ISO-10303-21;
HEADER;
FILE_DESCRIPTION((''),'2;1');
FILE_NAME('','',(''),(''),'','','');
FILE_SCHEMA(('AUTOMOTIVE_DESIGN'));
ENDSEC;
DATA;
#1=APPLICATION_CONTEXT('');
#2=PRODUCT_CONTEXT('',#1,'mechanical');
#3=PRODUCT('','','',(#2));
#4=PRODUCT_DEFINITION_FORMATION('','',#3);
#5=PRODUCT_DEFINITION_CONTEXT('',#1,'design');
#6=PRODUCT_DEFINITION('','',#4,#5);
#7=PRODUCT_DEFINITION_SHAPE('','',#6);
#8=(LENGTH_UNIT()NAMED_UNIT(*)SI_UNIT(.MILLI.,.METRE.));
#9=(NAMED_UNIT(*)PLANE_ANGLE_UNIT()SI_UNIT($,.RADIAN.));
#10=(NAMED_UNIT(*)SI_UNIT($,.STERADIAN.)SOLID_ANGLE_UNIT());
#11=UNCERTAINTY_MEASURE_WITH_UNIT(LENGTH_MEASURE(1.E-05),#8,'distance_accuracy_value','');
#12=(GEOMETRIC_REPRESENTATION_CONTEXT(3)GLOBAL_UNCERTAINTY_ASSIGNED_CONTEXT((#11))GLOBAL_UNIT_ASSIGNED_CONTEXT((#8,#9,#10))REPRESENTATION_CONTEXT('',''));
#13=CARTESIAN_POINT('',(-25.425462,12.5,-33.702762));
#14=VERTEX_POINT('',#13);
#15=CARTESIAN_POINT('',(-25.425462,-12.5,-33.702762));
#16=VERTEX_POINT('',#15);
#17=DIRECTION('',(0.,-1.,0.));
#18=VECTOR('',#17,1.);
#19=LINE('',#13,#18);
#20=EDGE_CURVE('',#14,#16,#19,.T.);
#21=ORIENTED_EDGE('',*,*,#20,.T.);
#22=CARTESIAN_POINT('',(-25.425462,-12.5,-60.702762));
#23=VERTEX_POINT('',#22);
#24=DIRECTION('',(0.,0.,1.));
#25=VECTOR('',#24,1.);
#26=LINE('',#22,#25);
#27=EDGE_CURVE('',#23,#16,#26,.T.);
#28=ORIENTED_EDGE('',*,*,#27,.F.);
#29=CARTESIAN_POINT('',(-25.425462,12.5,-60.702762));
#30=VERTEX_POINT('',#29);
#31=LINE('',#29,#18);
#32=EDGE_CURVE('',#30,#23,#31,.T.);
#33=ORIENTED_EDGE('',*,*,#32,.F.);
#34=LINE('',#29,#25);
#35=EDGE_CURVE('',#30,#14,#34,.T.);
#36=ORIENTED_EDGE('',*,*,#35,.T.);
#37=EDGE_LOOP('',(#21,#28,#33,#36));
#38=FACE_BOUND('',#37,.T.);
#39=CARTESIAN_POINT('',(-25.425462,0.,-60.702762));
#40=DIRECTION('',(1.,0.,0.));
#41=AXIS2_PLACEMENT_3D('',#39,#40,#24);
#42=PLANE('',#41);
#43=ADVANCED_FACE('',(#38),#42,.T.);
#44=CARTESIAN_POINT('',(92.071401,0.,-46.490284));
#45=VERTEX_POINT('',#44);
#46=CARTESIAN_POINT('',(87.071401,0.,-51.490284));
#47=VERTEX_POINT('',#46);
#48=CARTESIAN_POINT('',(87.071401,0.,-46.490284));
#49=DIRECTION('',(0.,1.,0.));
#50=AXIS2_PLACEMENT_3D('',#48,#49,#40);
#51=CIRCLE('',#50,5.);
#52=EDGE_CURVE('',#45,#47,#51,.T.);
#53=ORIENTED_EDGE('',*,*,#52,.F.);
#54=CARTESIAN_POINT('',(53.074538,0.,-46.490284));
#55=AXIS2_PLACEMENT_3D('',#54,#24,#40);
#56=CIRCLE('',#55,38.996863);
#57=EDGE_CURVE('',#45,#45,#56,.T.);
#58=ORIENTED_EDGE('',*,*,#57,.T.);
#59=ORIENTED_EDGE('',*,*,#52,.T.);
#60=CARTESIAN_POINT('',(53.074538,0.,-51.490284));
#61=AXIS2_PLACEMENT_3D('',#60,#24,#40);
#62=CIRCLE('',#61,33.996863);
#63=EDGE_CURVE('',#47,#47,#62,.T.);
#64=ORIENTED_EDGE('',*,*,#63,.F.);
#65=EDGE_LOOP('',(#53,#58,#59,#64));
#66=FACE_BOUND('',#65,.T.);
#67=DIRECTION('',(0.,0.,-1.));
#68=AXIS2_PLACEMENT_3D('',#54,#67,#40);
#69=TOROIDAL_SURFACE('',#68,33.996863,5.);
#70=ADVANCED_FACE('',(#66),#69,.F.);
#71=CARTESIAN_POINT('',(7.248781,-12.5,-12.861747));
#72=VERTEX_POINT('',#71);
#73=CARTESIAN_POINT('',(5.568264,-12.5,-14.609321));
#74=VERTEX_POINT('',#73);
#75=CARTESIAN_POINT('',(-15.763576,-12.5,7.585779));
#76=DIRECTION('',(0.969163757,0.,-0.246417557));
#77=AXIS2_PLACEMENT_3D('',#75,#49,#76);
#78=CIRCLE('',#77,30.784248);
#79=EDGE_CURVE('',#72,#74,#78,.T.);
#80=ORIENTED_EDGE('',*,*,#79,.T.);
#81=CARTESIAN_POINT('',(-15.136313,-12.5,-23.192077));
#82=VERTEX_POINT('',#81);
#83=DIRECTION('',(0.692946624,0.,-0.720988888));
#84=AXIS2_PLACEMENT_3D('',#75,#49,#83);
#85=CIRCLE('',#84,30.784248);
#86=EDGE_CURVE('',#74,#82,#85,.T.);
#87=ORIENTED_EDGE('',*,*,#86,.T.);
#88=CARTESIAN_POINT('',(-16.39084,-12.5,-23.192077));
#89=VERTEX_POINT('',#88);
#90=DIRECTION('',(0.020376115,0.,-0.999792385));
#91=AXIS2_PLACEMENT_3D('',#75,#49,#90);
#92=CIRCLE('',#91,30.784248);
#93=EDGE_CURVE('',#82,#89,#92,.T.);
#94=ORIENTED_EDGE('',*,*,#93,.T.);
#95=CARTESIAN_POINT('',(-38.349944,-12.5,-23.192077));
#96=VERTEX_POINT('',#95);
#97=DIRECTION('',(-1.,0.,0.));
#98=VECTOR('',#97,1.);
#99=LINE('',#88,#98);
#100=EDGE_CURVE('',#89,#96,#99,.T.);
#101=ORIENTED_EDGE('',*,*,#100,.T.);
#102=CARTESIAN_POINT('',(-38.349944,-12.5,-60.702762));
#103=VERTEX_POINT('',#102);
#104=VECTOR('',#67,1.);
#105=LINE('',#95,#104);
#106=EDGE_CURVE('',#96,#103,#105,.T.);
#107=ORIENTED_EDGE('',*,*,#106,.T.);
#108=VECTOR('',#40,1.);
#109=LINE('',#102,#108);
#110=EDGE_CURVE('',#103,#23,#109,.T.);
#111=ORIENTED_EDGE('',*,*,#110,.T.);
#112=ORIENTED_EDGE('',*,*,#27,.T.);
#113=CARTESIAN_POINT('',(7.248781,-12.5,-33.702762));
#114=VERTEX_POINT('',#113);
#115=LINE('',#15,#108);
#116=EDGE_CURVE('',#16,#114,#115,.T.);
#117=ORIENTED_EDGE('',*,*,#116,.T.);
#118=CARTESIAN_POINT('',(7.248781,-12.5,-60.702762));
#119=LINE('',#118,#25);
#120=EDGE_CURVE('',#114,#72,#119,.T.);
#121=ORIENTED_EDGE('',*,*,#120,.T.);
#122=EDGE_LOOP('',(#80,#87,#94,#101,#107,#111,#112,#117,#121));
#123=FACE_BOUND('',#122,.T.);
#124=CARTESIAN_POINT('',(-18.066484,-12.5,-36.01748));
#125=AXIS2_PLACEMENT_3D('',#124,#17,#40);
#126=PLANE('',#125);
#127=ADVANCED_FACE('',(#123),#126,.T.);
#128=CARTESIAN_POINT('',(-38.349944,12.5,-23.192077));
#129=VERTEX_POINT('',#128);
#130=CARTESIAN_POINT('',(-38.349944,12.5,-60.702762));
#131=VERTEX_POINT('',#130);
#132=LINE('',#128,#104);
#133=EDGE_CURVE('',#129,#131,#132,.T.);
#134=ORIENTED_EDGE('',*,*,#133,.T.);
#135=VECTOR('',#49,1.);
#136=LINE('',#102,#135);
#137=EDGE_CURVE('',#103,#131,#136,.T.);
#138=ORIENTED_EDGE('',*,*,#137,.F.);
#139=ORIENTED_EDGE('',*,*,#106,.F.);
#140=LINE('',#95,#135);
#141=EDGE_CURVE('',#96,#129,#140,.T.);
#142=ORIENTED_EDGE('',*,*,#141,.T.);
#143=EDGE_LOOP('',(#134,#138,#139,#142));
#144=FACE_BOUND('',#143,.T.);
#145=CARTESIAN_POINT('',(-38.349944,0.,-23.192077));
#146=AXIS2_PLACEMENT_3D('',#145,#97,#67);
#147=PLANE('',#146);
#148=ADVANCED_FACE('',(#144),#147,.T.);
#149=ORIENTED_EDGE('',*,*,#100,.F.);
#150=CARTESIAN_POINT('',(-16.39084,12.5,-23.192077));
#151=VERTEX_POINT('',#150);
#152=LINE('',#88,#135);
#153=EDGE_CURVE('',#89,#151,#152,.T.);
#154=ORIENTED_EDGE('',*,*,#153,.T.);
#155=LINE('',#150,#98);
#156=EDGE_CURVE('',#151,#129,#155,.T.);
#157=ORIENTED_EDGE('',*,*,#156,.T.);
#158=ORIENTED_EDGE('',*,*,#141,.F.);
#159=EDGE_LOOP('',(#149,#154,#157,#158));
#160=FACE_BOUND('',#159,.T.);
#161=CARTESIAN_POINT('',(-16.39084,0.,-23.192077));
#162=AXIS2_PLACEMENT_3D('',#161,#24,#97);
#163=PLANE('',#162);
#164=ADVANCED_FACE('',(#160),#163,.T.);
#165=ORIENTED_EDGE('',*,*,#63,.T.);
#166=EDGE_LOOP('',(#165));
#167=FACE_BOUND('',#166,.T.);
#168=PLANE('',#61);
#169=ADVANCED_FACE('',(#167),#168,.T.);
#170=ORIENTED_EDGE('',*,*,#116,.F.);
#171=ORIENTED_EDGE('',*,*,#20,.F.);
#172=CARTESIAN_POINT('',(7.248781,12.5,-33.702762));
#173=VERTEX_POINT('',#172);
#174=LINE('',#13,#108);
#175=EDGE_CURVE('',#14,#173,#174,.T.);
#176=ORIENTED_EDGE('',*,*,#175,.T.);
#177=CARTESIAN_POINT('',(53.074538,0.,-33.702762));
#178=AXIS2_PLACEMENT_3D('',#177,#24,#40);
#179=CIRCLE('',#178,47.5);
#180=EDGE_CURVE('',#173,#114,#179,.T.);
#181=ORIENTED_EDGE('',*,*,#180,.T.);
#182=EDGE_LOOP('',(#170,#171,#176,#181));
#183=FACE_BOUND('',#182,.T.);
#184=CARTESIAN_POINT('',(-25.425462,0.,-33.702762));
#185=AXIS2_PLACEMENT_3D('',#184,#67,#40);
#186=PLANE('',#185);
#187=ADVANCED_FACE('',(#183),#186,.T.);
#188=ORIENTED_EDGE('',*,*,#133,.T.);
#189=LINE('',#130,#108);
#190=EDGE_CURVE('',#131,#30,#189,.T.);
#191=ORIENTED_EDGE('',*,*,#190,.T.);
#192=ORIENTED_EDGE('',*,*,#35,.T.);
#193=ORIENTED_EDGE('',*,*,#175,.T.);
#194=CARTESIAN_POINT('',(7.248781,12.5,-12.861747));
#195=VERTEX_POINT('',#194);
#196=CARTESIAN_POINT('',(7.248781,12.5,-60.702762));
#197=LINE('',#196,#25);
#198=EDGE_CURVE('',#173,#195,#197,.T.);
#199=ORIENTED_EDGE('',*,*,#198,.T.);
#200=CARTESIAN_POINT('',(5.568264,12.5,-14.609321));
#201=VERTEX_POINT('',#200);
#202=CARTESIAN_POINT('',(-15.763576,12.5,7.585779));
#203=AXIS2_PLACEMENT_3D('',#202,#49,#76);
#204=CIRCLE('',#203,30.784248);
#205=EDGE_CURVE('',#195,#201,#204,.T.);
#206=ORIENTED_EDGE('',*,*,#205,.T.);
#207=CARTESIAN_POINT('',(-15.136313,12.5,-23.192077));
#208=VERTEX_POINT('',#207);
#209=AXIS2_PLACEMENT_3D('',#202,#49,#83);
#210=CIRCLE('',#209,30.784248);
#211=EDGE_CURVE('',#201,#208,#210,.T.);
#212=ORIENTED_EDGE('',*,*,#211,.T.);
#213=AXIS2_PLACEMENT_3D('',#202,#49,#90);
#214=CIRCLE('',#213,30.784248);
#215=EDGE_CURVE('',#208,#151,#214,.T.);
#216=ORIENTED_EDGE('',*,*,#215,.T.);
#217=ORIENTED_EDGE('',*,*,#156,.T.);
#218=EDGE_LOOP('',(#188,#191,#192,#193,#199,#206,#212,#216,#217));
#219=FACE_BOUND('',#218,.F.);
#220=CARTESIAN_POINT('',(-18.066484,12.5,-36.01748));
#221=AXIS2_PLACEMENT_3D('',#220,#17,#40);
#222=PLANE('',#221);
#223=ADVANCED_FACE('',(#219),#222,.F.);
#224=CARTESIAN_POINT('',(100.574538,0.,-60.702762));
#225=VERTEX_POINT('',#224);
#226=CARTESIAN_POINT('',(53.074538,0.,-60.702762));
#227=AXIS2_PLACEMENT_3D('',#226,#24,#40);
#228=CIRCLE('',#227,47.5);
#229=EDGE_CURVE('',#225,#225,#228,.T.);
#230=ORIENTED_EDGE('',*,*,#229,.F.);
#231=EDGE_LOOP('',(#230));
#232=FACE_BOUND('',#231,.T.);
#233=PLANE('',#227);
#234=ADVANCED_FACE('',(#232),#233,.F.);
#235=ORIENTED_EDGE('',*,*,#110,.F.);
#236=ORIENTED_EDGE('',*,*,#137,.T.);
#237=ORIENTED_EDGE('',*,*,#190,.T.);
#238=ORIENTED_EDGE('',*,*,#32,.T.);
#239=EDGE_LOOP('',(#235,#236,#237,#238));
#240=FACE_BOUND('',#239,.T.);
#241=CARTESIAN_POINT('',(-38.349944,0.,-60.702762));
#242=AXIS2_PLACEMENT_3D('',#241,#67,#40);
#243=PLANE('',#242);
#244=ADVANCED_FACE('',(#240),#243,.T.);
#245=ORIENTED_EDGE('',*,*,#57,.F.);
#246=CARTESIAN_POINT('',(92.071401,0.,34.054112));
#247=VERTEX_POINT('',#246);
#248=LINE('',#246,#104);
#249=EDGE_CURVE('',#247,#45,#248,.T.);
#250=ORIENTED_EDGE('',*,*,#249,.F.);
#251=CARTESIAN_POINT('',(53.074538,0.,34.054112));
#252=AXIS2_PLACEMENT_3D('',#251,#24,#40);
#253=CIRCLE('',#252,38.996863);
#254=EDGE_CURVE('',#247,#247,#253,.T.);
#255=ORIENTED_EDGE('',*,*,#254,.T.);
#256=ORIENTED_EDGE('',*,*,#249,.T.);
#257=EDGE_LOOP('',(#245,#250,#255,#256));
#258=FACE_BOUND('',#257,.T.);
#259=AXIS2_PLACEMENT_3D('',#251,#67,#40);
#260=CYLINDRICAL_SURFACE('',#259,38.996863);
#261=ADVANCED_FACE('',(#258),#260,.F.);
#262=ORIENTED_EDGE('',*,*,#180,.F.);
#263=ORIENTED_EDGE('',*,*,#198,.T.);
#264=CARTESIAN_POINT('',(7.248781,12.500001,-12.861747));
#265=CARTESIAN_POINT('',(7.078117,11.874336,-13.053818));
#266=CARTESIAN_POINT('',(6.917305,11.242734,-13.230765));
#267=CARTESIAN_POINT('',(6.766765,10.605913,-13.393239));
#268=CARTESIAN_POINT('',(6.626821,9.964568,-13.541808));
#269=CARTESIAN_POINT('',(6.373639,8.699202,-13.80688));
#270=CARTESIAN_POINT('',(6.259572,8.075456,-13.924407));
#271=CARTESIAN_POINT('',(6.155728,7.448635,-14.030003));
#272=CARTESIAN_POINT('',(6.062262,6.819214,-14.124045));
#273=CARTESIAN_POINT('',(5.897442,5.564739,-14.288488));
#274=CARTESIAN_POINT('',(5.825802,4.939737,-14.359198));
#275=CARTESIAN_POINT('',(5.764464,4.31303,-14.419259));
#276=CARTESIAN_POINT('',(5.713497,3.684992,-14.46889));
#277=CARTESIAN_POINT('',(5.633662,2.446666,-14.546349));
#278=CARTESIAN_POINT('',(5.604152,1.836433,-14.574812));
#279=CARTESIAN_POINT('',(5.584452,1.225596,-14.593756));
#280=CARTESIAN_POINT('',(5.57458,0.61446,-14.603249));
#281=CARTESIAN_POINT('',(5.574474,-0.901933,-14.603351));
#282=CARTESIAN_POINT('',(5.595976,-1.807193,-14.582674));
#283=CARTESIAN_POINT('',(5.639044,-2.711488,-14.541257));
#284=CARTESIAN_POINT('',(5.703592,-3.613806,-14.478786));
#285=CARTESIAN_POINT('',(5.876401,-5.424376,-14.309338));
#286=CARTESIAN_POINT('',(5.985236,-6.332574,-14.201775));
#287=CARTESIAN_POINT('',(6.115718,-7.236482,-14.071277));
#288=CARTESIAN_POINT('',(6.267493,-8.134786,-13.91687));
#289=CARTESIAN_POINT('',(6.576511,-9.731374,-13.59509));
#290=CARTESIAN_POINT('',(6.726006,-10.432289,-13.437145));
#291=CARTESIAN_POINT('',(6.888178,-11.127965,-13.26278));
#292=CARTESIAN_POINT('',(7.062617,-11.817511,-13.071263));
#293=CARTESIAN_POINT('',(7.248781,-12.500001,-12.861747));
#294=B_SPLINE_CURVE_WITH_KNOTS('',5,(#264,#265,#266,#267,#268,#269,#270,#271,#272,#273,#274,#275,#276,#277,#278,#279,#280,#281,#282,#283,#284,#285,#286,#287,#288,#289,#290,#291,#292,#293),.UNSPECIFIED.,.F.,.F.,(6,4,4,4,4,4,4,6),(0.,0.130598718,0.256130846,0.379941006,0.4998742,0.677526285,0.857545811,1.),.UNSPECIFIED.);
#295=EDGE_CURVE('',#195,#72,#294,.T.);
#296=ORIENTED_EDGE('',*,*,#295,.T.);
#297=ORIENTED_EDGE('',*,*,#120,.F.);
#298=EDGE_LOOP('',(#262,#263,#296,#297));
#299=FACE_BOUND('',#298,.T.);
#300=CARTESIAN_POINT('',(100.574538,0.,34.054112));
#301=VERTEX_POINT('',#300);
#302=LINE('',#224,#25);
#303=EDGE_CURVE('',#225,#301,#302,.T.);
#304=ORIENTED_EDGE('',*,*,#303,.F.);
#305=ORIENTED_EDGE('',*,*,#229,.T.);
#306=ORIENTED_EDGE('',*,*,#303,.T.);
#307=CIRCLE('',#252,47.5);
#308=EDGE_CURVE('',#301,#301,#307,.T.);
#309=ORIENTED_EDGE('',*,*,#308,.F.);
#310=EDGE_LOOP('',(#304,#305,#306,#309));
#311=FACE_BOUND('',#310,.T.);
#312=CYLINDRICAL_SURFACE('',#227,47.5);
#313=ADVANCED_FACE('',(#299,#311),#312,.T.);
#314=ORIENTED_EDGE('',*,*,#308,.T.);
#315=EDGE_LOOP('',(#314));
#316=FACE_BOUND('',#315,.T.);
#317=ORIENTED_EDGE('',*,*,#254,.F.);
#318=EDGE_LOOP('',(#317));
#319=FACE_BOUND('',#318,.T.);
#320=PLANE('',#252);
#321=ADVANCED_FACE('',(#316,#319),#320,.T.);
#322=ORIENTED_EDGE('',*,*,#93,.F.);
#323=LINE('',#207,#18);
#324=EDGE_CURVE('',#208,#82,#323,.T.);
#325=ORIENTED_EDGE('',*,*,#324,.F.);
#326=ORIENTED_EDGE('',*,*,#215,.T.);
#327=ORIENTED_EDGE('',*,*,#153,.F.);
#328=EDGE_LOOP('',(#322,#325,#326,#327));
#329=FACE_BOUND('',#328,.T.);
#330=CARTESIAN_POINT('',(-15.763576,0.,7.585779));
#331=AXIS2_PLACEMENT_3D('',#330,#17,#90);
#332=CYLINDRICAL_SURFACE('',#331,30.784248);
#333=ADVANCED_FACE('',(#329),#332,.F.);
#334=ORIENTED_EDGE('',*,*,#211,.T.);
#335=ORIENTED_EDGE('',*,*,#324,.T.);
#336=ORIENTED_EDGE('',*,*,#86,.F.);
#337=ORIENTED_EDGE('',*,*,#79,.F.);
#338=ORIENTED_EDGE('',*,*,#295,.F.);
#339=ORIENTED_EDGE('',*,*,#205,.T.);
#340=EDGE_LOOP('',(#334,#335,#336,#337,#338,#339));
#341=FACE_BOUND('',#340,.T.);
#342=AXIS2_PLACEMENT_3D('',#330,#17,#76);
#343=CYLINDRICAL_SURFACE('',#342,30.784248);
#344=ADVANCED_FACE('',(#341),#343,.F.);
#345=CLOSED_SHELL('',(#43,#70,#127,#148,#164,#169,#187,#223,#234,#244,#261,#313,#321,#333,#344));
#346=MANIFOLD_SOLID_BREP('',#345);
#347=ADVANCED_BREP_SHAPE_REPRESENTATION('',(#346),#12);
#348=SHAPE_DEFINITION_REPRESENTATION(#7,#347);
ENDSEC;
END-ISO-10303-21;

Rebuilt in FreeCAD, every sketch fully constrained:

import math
import FreeCAD as App
import Part
import Sketcher

V = App.Vector

doc = App.newDocument("Part")
body = doc.addObject("PartDesign::Body", "Body")

# Sketch on XZ plane
sketch1 = body.newObject("Sketcher::SketchObject", "Sketch")
sketch1.AttachmentSupport = (doc.getObject("XZ_Plane"), [""])
sketch1.MapMode = "FlatFace"
sketch1.addGeometry(Part.LineSegment(V(53, -51, 0), V(53, -61, 0)), False)
sketch1.addGeometry(Part.LineSegment(V(53, -61, 0), V(101, -61, 0)), False)
sketch1.addGeometry(Part.LineSegment(V(101, -61, 0), V(101, 34, 0)), False)
sketch1.addGeometry(Part.LineSegment(V(101, 34, 0), V(92, 34, 0)), False)
sketch1.addGeometry(Part.LineSegment(V(92, 34, 0), V(92, -46, 0)), False)
sketch1.addGeometry(Part.ArcOfCircle(Part.Circle(V(87, -46, 0), V(0, 0, 1), 5), math.radians(-90), math.radians(0)), False)
sketch1.addGeometry(Part.LineSegment(V(87, -51, 0), V(53, -51, 0)), False)
sketch1.addGeometry(Part.LineSegment(V(53, -61, 0), V(53, 34, 0)), True)  # axis
sketch1.addConstraint(Sketcher.Constraint("Coincident", 0, 2, 1, 1))
sketch1.addConstraint(Sketcher.Constraint("Coincident", 1, 2, 2, 1))
sketch1.addConstraint(Sketcher.Constraint("Coincident", 2, 2, 3, 1))
sketch1.addConstraint(Sketcher.Constraint("Coincident", 3, 2, 4, 1))
sketch1.addConstraint(Sketcher.Constraint("Tangent", 4, 2, 5, 2))
sketch1.addConstraint(Sketcher.Constraint("Tangent", 5, 1, 6, 1))
sketch1.addConstraint(Sketcher.Constraint("Coincident", 6, 2, 0, 1))
sketch1.addConstraint(Sketcher.Constraint("Vertical", 0))
sketch1.addConstraint(Sketcher.Constraint("Horizontal", 1))
sketch1.addConstraint(Sketcher.Constraint("Vertical", 2))
sketch1.addConstraint(Sketcher.Constraint("Horizontal", 3))
sketch1.addConstraint(Sketcher.Constraint("Vertical", 4))
sketch1.addConstraint(Sketcher.Constraint("Horizontal", 6))
sketch1.addConstraint(Sketcher.Constraint("Vertical", 7))
sketch1.addConstraint(Sketcher.Constraint("Coincident", 7, 1, 0, 2))
sketch1.addConstraint(Sketcher.Constraint("Horizontal", 3, 2, 7, 2))
sketch1.addConstraint(Sketcher.Constraint("Radius", 5, 5.0))
sketch1.addConstraint(Sketcher.Constraint("DistanceX", 1, 1, 1, 2, 47.5))
sketch1.addConstraint(Sketcher.Constraint("DistanceY", 0, 2, 0, 1, 9.212478))
sketch1.addConstraint(Sketcher.Constraint("DistanceX", -1, 1, 5, 3, 87.071401))
sketch1.addConstraint(Sketcher.Constraint("DistanceX", 3, 2, 3, 1, 8.503137))
sketch1.addConstraint(Sketcher.Constraint("DistanceY", 2, 1, 2, 2, 94.756874))
sketch1.addConstraint(Sketcher.Constraint("DistanceY", -1, 1, 2, 2, 34.054112))
revolution = body.newObject("PartDesign::Revolution", "Revolution")
revolution.Profile = sketch1
revolution.ReferenceAxis = (sketch1, ["Axis0"])
revolution.Angle = 360

# Sketch on XZ plane
sketch2 = body.newObject("Sketcher::SketchObject", "Sketch001")
sketch2.AttachmentSupport = (doc.getObject("XZ_Plane"), [""])
sketch2.MapMode = "FlatFace"
sketch2.addGeometry(Part.LineSegment(V(-38.3, -60.7, 0), V(-25.4, -60.7, 0)), False)
sketch2.addGeometry(Part.LineSegment(V(-25.4, -60.7, 0), V(-25.4, -33.7, 0)), False)
sketch2.addGeometry(Part.LineSegment(V(-25.4, -33.7, 0), V(14.1, -33.7, 0)), False)
sketch2.addGeometry(Part.LineSegment(V(14.1, -33.7, 0), V(14.1, 0, 0)), False)
sketch2.addGeometry(Part.ArcOfCircle(Part.Circle(V(-15.8, 7.6, 0), V(0, 0, 1), 30.8), math.radians(-46), math.radians(-14)), False)
sketch2.addGeometry(Part.ArcOfCircle(Part.Circle(V(-15.8, 7.6, 0), V(0, 0, 1), 30.8), math.radians(-89), math.radians(-46)), False)
sketch2.addGeometry(Part.ArcOfCircle(Part.Circle(V(-15.8, 7.6, 0), V(0, 0, 1), 30.8), math.radians(-91.17), math.radians(-88.83)), False)
sketch2.addGeometry(Part.LineSegment(V(-16.4, -23.2, 0), V(-38.3, -23.2, 0)), False)
sketch2.addGeometry(Part.LineSegment(V(-38.3, -23.2, 0), V(-38.3, -60.7, 0)), False)
sketch2.addConstraint(Sketcher.Constraint("Coincident", 0, 2, 1, 1))
sketch2.addConstraint(Sketcher.Constraint("Coincident", 1, 2, 2, 1))
sketch2.addConstraint(Sketcher.Constraint("Coincident", 2, 2, 3, 1))
sketch2.addConstraint(Sketcher.Constraint("Coincident", 3, 2, 4, 2))
sketch2.addConstraint(Sketcher.Constraint("Tangent", 4, 1, 5, 2))
sketch2.addConstraint(Sketcher.Constraint("Tangent", 5, 1, 6, 2))
sketch2.addConstraint(Sketcher.Constraint("Coincident", 6, 1, 7, 1))
sketch2.addConstraint(Sketcher.Constraint("Coincident", 7, 2, 8, 1))
sketch2.addConstraint(Sketcher.Constraint("Coincident", 8, 2, 0, 1))
sketch2.addConstraint(Sketcher.Constraint("Horizontal", 0))
sketch2.addConstraint(Sketcher.Constraint("Vertical", 1))
sketch2.addConstraint(Sketcher.Constraint("Horizontal", 2))
sketch2.addConstraint(Sketcher.Constraint("Vertical", 3))
sketch2.addConstraint(Sketcher.Constraint("Horizontal", 7))
sketch2.addConstraint(Sketcher.Constraint("Vertical", 8))
sketch2.addConstraint(Sketcher.Constraint("Coincident", 6, 3, 4, 3))
sketch2.addConstraint(Sketcher.Constraint("PointOnObject", 3, 2, -1))
sketch2.addConstraint(Sketcher.Constraint("Horizontal", 5, 1, 6, 1))
sketch2.addConstraint(Sketcher.Constraint("DistanceY", 1, 1, 1, 2, 27.0))
sketch2.addConstraint(Sketcher.Constraint("Radius", 6, 30.784248))
sketch2.addConstraint(Sketcher.Constraint("DistanceX", 0, 1, 0, 2, 12.924481))
sketch2.addConstraint(Sketcher.Constraint("DistanceX", -1, 1, 2, 2, 14.071401))
sketch2.addConstraint(Sketcher.Constraint("DistanceY", 4, 1, 4, 3, 22.195101))
sketch2.addConstraint(Sketcher.Constraint("DistanceX", 2, 1, 2, 2, 39.496863))
sketch2.addConstraint(Sketcher.Constraint("DistanceX", 7, 2, 7, 1, 21.959104))
sketch2.addConstraint(Sketcher.Constraint("DistanceY", 3, 1, 3, 2, 33.702762))
sketch2.addConstraint(Sketcher.Constraint("DistanceY", 8, 2, 8, 1, 37.510685))
pad1 = body.newObject("PartDesign::Pad", "Pad")
pad1.Profile = sketch2
pad1.Length = 25
pad1.Midplane = True

doc.recompute()
